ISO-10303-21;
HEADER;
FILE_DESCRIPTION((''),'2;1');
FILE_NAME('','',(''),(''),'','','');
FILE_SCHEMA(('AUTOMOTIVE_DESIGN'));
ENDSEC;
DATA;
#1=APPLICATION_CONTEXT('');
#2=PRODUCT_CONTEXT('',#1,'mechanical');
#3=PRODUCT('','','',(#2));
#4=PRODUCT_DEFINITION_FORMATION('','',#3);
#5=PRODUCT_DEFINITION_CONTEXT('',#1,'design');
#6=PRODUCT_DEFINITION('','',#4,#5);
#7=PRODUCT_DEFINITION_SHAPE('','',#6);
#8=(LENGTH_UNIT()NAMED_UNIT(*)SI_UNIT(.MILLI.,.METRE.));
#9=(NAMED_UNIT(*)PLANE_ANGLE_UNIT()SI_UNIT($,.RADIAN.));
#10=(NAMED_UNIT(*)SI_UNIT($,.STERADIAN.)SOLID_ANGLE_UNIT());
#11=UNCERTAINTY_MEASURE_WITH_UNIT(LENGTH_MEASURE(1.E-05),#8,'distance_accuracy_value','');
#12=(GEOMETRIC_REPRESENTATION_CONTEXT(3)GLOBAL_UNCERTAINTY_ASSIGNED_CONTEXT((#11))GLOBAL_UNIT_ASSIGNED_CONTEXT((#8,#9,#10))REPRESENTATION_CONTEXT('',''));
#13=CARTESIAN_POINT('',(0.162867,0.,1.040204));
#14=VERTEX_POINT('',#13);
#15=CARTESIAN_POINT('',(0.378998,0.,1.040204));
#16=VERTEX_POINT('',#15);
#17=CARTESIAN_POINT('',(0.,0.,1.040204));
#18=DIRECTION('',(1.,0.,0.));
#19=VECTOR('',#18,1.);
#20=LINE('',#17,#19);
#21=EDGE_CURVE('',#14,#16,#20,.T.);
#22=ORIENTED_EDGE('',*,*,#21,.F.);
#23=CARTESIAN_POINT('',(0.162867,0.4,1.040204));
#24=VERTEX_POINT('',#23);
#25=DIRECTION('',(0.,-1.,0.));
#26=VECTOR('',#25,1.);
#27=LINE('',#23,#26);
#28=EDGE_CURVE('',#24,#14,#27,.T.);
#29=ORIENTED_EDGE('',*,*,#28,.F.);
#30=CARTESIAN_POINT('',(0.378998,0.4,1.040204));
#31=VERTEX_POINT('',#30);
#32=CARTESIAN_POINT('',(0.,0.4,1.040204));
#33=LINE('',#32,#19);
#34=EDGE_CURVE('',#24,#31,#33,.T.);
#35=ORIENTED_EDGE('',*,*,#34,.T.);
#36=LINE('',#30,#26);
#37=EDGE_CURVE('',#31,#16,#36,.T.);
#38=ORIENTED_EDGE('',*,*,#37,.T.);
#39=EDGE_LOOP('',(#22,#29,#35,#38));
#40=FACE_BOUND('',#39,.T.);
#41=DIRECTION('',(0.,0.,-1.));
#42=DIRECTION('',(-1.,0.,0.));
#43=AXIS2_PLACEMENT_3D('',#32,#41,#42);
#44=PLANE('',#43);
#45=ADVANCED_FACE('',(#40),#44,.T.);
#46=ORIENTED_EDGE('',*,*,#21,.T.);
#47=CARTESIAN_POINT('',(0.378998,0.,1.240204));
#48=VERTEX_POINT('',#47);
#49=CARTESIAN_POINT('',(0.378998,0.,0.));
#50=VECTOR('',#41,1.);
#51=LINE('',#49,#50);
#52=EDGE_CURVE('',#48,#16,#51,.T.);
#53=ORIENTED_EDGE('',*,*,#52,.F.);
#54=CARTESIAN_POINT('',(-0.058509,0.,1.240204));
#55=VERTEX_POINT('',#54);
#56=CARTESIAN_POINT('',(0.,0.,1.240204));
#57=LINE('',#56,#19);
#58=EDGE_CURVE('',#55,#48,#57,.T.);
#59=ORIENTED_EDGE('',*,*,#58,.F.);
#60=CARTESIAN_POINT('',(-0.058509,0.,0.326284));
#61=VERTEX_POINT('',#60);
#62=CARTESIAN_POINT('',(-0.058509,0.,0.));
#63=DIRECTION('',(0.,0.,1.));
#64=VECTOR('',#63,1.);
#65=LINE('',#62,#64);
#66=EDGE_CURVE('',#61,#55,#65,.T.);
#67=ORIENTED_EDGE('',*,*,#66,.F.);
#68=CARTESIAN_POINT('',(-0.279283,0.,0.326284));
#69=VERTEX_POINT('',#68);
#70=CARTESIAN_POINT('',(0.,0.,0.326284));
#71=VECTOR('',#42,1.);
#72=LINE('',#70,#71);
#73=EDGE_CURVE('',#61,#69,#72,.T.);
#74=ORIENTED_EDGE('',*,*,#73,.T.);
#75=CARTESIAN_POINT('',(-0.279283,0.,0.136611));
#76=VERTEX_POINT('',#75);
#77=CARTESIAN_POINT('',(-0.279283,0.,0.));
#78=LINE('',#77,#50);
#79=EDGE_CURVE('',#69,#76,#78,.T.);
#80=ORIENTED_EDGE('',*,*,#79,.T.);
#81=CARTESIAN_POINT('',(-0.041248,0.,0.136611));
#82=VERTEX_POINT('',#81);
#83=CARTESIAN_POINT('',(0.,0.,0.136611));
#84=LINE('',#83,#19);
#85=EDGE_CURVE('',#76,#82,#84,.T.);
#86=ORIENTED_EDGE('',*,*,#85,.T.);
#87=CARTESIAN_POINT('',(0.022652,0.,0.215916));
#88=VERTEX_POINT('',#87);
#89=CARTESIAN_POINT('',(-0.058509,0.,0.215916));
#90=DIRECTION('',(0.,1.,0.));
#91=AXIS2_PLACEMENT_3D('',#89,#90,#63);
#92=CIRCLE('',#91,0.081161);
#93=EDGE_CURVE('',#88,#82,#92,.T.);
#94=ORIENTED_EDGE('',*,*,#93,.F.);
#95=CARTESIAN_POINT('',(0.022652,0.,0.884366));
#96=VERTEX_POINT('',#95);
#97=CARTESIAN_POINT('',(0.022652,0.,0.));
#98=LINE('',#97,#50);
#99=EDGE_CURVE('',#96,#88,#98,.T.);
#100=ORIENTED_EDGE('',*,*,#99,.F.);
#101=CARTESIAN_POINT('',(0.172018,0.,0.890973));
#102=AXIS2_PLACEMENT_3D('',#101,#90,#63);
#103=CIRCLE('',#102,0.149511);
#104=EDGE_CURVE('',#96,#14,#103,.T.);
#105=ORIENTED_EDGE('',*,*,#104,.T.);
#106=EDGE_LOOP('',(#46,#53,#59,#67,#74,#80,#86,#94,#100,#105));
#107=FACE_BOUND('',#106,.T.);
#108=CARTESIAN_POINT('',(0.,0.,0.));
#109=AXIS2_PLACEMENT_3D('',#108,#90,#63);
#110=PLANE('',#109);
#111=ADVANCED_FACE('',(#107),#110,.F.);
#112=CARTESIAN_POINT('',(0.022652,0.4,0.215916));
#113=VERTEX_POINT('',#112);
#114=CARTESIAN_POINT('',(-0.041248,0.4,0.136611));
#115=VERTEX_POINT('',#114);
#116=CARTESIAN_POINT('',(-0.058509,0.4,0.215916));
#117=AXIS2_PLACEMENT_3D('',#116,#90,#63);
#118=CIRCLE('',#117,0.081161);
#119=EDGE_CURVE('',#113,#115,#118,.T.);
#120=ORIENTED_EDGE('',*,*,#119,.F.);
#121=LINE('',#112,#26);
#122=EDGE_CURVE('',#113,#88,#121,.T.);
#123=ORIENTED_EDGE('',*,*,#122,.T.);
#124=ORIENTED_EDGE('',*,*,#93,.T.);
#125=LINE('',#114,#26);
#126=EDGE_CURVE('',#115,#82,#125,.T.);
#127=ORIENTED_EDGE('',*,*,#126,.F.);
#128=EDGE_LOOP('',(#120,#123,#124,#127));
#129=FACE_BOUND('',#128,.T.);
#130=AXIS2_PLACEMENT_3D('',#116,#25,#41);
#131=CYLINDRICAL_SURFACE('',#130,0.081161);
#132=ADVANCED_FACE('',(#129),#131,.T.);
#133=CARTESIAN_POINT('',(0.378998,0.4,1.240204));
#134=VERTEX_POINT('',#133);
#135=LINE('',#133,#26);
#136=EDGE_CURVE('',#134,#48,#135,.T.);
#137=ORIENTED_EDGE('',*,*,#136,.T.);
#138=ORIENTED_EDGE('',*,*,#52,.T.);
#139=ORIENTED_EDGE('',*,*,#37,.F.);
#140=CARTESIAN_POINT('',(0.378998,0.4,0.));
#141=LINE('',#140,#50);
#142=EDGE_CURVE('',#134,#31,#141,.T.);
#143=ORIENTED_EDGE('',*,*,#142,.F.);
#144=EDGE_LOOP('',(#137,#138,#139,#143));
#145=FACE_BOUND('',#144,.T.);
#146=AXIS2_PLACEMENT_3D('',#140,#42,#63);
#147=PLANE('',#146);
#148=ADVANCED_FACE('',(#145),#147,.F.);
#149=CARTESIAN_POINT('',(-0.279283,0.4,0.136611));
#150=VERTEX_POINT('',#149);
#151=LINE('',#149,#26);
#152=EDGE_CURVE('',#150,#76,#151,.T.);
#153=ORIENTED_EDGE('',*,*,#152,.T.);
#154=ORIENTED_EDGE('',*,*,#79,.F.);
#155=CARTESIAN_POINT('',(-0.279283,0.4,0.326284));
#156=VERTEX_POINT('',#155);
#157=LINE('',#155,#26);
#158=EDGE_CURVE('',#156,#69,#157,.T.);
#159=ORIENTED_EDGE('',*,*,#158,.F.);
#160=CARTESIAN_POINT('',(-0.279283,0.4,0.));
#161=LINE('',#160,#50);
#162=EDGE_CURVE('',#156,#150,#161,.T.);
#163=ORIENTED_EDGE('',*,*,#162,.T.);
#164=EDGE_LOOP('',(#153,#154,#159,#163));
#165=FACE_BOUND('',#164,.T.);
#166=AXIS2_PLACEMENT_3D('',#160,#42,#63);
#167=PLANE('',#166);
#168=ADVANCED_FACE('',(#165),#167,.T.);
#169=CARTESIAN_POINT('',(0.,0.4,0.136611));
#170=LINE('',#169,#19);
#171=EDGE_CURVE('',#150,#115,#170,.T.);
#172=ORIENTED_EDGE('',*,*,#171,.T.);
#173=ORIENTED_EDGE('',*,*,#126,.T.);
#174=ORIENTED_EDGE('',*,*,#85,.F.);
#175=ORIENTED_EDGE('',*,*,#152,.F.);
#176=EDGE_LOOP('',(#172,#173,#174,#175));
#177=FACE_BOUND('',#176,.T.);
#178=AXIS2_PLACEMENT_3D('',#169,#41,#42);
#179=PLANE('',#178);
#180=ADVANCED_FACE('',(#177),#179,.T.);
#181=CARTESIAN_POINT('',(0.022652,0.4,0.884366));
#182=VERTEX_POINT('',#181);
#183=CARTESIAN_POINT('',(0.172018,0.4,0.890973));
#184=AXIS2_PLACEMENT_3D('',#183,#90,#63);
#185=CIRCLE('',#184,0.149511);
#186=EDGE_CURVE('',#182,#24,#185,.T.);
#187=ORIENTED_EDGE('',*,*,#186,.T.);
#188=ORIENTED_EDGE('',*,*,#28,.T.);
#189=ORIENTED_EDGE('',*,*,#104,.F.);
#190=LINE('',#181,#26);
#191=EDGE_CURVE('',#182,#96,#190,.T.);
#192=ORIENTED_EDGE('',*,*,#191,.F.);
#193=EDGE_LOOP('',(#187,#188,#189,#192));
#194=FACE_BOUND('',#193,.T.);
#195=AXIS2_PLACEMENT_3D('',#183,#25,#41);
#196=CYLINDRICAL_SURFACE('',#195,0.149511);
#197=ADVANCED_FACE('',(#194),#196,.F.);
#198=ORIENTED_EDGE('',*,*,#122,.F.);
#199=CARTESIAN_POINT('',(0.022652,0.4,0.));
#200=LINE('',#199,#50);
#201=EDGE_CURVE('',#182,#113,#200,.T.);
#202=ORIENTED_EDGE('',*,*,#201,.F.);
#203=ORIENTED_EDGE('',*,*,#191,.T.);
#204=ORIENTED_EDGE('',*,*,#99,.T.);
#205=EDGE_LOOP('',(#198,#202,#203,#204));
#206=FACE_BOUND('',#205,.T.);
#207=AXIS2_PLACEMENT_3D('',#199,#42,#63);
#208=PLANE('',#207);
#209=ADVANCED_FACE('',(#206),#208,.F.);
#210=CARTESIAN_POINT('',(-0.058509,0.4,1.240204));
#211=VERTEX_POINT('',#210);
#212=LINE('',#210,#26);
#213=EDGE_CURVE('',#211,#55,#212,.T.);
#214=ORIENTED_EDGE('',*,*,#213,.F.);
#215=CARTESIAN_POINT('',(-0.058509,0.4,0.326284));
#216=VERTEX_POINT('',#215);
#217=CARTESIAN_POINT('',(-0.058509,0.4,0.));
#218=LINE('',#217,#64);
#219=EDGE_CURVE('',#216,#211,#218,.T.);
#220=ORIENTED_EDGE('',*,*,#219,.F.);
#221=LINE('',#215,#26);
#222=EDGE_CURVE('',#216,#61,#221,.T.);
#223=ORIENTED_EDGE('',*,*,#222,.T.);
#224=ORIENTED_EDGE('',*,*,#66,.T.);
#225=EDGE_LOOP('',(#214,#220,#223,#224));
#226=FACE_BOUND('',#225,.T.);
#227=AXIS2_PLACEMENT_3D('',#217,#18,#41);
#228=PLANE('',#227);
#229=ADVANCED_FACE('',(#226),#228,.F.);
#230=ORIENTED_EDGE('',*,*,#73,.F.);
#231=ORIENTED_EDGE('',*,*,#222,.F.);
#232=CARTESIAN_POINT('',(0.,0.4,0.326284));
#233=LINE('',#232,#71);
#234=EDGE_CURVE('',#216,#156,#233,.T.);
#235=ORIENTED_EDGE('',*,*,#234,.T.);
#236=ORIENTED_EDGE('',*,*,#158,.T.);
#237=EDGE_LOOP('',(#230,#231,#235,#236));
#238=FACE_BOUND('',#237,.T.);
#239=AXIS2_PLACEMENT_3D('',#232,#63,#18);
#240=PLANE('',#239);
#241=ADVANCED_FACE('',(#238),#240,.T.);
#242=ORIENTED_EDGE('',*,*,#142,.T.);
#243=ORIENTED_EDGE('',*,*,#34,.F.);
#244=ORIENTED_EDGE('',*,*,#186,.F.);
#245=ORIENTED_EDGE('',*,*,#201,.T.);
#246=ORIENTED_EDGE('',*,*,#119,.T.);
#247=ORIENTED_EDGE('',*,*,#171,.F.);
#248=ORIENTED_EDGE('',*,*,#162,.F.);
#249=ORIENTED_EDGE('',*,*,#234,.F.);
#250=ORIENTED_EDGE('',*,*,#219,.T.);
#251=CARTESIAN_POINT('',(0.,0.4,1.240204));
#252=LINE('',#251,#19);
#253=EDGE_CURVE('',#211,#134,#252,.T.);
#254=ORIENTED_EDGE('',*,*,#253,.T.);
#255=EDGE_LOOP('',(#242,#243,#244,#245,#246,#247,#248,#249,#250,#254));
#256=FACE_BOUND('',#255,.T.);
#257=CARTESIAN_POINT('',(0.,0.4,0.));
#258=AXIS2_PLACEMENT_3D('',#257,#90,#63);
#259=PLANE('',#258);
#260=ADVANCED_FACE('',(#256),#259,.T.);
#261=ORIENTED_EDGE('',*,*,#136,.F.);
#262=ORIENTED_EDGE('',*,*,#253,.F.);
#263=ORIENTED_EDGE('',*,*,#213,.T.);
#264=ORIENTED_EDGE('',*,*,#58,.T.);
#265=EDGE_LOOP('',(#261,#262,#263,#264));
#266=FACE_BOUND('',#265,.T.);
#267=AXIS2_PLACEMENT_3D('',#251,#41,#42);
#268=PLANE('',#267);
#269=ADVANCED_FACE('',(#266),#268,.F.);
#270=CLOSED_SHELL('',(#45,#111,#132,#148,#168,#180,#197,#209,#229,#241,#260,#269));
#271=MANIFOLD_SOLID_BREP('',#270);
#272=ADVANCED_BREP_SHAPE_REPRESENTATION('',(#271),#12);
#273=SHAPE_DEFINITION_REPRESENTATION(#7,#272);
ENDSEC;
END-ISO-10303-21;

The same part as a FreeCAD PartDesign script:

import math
import FreeCAD as App
import Part
import Sketcher

V = App.Vector
Q = App.Units.Quantity

doc = App.newDocument("Part")
params = doc.addObject("Spreadsheet::Sheet", "Params")
for row, (alias, value) in enumerate([
    ("sketch1_height", "0.2 mm"),
    ("pad1_length", "0.4 mm"),
], start=1):
    params.set(f"A{row}", alias)
    params.set(f"B{row}", "=" + value)
    params.setAlias(f"B{row}", alias)

body = doc.addObject("PartDesign::Body", "Body")

sketch1 = body.newObject("Sketcher::SketchObject", "Sketch")
sketch1.AttachmentSupport = (doc.getObject("XZ_Plane"), [""])
sketch1.MapMode = "FlatFace"
sketch1.addGeometry([
    Part.LineSegment(V(0.379, 1.04, 0), V(0.163, 1.04, 0)),
    Part.ArcOfCircle(Part.Circle(V(0.172, 0.891, 0), V(0, 0, 1), 0.15), math.radians(94), math.radians(177)),
    Part.ArcOfCircle(Part.Circle(V(0.172, 0.891, 0), V(0, 0, 1), 0.15), math.radians(177.47), math.radians(182.53)),
    Part.LineSegment(V(0.023, 0.884, 0), V(0.023, 0.216, 0)),
    Part.ArcOfCircle(Part.Circle(V(-0.059, 0.216, 0), V(0, 0, 1), 0.081), math.radians(-78), math.radians(0)),
    Part.LineSegment(V(-0.041, 0.137, 0), V(-0.279, 0.137, 0)),
    Part.LineSegment(V(-0.279, 0.137, 0), V(-0.279, 0.326, 0)),
    Part.LineSegment(V(-0.279, 0.326, 0), V(-0.059, 0.326, 0)),
    Part.LineSegment(V(-0.059, 0.326, 0), V(-0.059, 1.24, 0)),
    Part.LineSegment(V(-0.059, 1.24, 0), V(0.379, 1.24, 0)),
    Part.LineSegment(V(0.379, 1.24, 0), V(0.379, 1.04, 0)),
], False)
sketch1.addConstraint([
    Sketcher.Constraint("Coincident", 0, 2, 1, 1),
    Sketcher.Constraint("Tangent", 1, 2, 2, 1),
    Sketcher.Constraint("Coincident", 2, 2, 3, 1),
    Sketcher.Constraint("Tangent", 3, 2, 4, 2),
    Sketcher.Constraint("Coincident", 4, 1, 5, 1),
    Sketcher.Constraint("Coincident", 5, 2, 6, 1),
    Sketcher.Constraint("Coincident", 6, 2, 7, 1),
    Sketcher.Constraint("Coincident", 7, 2, 8, 1),
    Sketcher.Constraint("Coincident", 8, 2, 9, 1),
    Sketcher.Constraint("Coincident", 9, 2, 10, 1),
    Sketcher.Constraint("Coincident", 10, 2, 0, 1),
    Sketcher.Constraint("Horizontal", 0),
    Sketcher.Constraint("Vertical", 3),
    Sketcher.Constraint("Horizontal", 5),
    Sketcher.Constraint("Vertical", 6),
    Sketcher.Constraint("Horizontal", 7),
    Sketcher.Constraint("Vertical", 8),
    Sketcher.Constraint("Horizontal", 9),
    Sketcher.Constraint("Vertical", 10),
    Sketcher.Constraint("Equal", 1, 2),
    Sketcher.Constraint("Vertical", 1, 2, 2, 2),
    Sketcher.Constraint("Vertical", 4, 3, 7, 2),
    Sketcher.Constraint("DistanceY", 10, 2, 10, 1, Q("0.2 mm")),
    Sketcher.Constraint("Radius", 1, Q("0.149511 mm")),
    Sketcher.Constraint("Radius", 4, Q("0.081161 mm")),
    Sketcher.Constraint("DistanceX", 0, 2, 0, 1, Q("0.216131 mm")),
    Sketcher.Constraint("DistanceY", 3, 2, 3, 1, Q("0.668451 mm")),
    Sketcher.Constraint("DistanceY", 8, 1, 8, 2, Q("0.91392 mm")),
    Sketcher.Constraint("DistanceX", 4, 1, 3, 2, Q("0.063901 mm")),
    Sketcher.Constraint("DistanceX", 5, 2, 5, 1, Q("0.238034 mm")),
    Sketcher.Constraint("DistanceX", 9, 1, 9, 2, Q("0.437507 mm")),
    Sketcher.Constraint("DistanceY", 6, 1, 6, 2, Q("0.189673 mm")),
    Sketcher.Constraint("DistanceX", 4, 3, -1, 1, Q("0.058509 mm")),
    Sketcher.Constraint("DistanceY", -1, 1, 1, 2, Q("0.897579 mm")),
])
sketch1.setExpression("Constraints[22]", "Params.sketch1_height")
pad1 = body.newObject("PartDesign::Pad", "Pad")
pad1.Profile = sketch1
pad1.setExpression("Length", "Params.pad1_length")
pad1.Reversed = True

doc.recompute()
